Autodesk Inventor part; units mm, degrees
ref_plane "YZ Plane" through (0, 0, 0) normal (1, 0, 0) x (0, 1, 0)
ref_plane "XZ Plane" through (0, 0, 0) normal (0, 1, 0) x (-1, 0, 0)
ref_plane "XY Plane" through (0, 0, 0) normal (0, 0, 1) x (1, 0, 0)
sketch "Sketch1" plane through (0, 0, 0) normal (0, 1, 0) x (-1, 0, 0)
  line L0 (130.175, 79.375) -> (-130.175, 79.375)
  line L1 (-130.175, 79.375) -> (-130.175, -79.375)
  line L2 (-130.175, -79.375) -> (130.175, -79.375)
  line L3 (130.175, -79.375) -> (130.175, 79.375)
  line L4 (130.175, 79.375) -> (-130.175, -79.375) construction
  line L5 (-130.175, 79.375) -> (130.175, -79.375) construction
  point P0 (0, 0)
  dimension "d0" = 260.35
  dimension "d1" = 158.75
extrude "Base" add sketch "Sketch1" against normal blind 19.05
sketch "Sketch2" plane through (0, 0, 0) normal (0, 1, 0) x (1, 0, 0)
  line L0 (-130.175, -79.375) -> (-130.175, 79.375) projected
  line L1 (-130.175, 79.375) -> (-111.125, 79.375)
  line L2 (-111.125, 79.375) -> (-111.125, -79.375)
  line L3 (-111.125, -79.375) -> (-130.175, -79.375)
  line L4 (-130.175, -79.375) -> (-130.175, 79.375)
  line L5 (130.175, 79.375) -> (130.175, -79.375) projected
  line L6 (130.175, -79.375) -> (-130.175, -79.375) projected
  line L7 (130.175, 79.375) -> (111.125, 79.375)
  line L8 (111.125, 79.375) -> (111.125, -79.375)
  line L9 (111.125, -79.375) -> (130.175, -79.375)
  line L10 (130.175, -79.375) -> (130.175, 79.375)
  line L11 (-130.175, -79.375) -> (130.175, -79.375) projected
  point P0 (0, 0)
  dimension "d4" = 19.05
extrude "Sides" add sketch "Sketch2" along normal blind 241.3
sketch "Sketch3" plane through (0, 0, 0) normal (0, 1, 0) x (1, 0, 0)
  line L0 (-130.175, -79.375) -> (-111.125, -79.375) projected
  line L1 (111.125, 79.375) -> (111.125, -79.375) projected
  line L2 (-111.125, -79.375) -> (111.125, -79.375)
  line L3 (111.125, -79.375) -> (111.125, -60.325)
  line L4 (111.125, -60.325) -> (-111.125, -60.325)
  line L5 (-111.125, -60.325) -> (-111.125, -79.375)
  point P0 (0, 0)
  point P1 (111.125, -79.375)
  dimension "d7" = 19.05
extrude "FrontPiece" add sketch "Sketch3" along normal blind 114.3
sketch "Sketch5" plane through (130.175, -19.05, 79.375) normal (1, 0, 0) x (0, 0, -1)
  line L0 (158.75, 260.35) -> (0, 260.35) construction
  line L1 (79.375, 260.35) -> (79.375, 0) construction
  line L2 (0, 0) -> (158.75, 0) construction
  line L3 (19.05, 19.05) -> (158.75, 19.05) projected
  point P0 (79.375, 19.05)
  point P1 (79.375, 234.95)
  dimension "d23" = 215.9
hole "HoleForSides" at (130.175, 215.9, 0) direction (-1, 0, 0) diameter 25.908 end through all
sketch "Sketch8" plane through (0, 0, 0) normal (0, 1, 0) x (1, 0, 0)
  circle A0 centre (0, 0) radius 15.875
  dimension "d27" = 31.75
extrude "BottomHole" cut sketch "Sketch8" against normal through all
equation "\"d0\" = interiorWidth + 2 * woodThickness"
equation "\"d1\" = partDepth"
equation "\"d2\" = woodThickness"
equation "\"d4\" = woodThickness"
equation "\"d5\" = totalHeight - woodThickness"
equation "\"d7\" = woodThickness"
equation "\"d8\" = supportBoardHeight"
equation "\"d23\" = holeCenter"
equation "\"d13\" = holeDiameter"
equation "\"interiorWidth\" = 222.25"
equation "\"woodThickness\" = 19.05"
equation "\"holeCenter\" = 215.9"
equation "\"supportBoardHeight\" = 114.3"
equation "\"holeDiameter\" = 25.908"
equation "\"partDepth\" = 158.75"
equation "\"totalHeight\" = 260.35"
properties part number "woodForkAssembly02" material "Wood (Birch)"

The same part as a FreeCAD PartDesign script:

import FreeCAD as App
import Part
import Sketcher
Q = App.Units.Quantity

doc = App.newDocument("Part")
body = doc.addObject("PartDesign::Body", "Body")

sketch1 = body.newObject("Sketcher::SketchObject", "Sketch")
sketch1.AttachmentSupport = (doc.getObject("XZ_Plane"), [""])
sketch1.MapMode = "FlatFace"
sketch1.addGeometry([
    Part.LineSegment(App.Vector(-130, -79, 0), App.Vector(-130, 79, 0)),
    Part.LineSegment(App.Vector(-130, 79, 0), App.Vector(130, 79, 0)),
    Part.LineSegment(App.Vector(130, 79, 0), App.Vector(130, -79, 0)),
    Part.LineSegment(App.Vector(130, -79, 0), App.Vector(-130, -79, 0)),
], False)
sketch1.addConstraint([
    Sketcher.Constraint("Coincident", 0, 2, 1, 1),
    Sketcher.Constraint("Coincident", 1, 2, 2, 1),
    Sketcher.Constraint("Coincident", 2, 2, 3, 1),
    Sketcher.Constraint("Coincident", 3, 2, 0, 1),
    Sketcher.Constraint("Vertical", 0),
    Sketcher.Constraint("Horizontal", 1),
    Sketcher.Constraint("Vertical", 2),
    Sketcher.Constraint("Horizontal", 3),
    Sketcher.Constraint("Symmetric", 0, 2, 2, 2, -1, 1),
    Sketcher.Constraint("DistanceX", 1, 1, 1, 2, Q("10.25 in")),
    Sketcher.Constraint("DistanceY", 0, 1, 0, 2, Q("6.25 in")),
])
pad1 = body.newObject("PartDesign::Pad", "Pad")
pad1.Profile = sketch1
pad1.Length = Q("0.75 in")

sketch2 = body.newObject("Sketcher::SketchObject", "Sketch001")
sketch2.AttachmentSupport = (doc.getObject("XZ_Plane"), [""])
sketch2.MapMode = "FlatFace"
sketch2.addGeometry([
    Part.LineSegment(App.Vector(111, -79, 0), App.Vector(111, 79, 0)),
    Part.LineSegment(App.Vector(111, 79, 0), App.Vector(130, 79, 0)),
    Part.LineSegment(App.Vector(130, 79, 0), App.Vector(130, -79, 0)),
    Part.LineSegment(App.Vector(130, -79, 0), App.Vector(111, -79, 0)),
    Part.LineSegment(App.Vector(-130, -79, 0), App.Vector(-130, 79, 0)),
    Part.LineSegment(App.Vector(-130, 79, 0), App.Vector(-111, 79, 0)),
    Part.LineSegment(App.Vector(-111, 79, 0), App.Vector(-111, -79, 0)),
    Part.LineSegment(App.Vector(-111, -79, 0), App.Vector(-130, -79, 0)),
], False)
sketch2.addConstraint([
    Sketcher.Constraint("Coincident", 0, 2, 1, 1),
    Sketcher.Constraint("Coincident", 1, 2, 2, 1),
    Sketcher.Constraint("Coincident", 2, 2, 3, 1),
    Sketcher.Constraint("Coincident", 3, 2, 0, 1),
    Sketcher.Constraint("Coincident", 4, 2, 5, 1),
    Sketcher.Constraint("Coincident", 5, 2, 6, 1),
    Sketcher.Constraint("Coincident", 6, 2, 7, 1),
    Sketcher.Constraint("Coincident", 7, 2, 4, 1),
    Sketcher.Constraint("Vertical", 0),
    Sketcher.Constraint("Horizontal", 1),
    Sketcher.Constraint("Vertical", 2),
    Sketcher.Constraint("Horizontal", 3),
    Sketcher.Constraint("Vertical", 4),
    Sketcher.Constraint("Horizontal", 5),
    Sketcher.Constraint("Vertical", 6),
    Sketcher.Constraint("Horizontal", 7),
    Sketcher.Constraint("Symmetric", 2, 2, 4, 2, -1, 1),
    Sketcher.Constraint("Symmetric", 0, 2, 6, 2, -1, 1),
    Sketcher.Constraint("Horizontal", 1, 2, 4, 2),
    Sketcher.Constraint("DistanceX", 1, 1, 1, 2, Q("0.75 in")),
    Sketcher.Constraint("DistanceY", 0, 1, 0, 2, Q("6.25 in")),
    Sketcher.Constraint("DistanceX", 4, 2, 0, 2, Q("9.5 in")),
])
pad2 = body.newObject("PartDesign::Pad", "Pad001")
pad2.Profile = sketch2
pad2.Length = Q("9.5 in")
pad2.Reversed = True

sketch3 = body.newObject("Sketcher::SketchObject", "Sketch002")
sketch3.AttachmentSupport = (doc.getObject("XZ_Plane"), [""])
sketch3.MapMode = "FlatFace"
sketch3.addGeometry([
    Part.LineSegment(App.Vector(111, 79, 0), App.Vector(111, 60, 0)),
    Part.LineSegment(App.Vector(111, 60, 0), App.Vector(-111, 60, 0)),
    Part.LineSegment(App.Vector(-111, 60, 0), App.Vector(-111, 79, 0)),
    Part.LineSegment(App.Vector(-111, 79, 0), App.Vector(111, 79, 0)),
], False)
sketch3.addConstraint([
    Sketcher.Constraint("Coincident", 0, 2, 1, 1),
    Sketcher.Constraint("Coincident", 1, 2, 2, 1),
    Sketcher.Constraint("Coincident", 2, 2, 3, 1),
    Sketcher.Constraint("Coincident", 3, 2, 0, 1),
    Sketcher.Constraint("Vertical", 0),
    Sketcher.Constraint("Horizontal", 1),
    Sketcher.Constraint("Vertical", 2),
    Sketcher.Constraint("Horizontal", 3),
    Sketcher.Constraint("DistanceY", 0, 2, 0, 1, Q("0.75 in")),
    Sketcher.Constraint("DistanceX", 1, 2, 1, 1, Q("8.75 in")),
    Sketcher.Constraint("DistanceX", -1, 1, 0, 2, Q("4.375 in")),
    Sketcher.Constraint("DistanceY", -1, 1, 0, 2, Q("2.375 in")),
])
pad3 = body.newObject("PartDesign::Pad", "Pad002")
pad3.Profile = sketch3
pad3.Length = Q("4.5 in")
pad3.Reversed = True

sketch4 = body.newObject("Sketcher::SketchObject", "Sketch003")
sketch4.AttachmentSupport = (doc.getObject("YZ_Plane"), [""])
sketch4.MapMode = "FlatFace"
sketch4.AttachmentOffset = App.Placement(App.Vector(0, 0, 5.125 * 25.4), App.Rotation())
sketch4.addGeometry(Part.Circle(App.Vector(216, 0, 0), App.Vector(0, 0, 1), 13), False)
sketch4.addConstraint([
    Sketcher.Constraint("PointOnObject", 0, 3, -1),
    Sketcher.Constraint("Diameter", 0, Q("1.02 in")),
    Sketcher.Constraint("DistanceX", -1, 1, 0, 3, Q("8.5 in")),
])
doc.recompute()
hole = body.newObject("PartDesign::Hole", "Hole")
hole.Profile = sketch4
hole.ThreadType = "None"
hole.Diameter = Q("1.02 in")
hole.DepthType = "ThroughAll"

sketch5 = body.newObject("Sketcher::SketchObject", "Sketch004")
sketch5.AttachmentSupport = (doc.getObject("XZ_Plane"), [""])
sketch5.MapMode = "FlatFace"
sketch5.addGeometry(Part.Circle(App.Vector(0, 0, 0), App.Vector(0, 0, 1), 16), False)
sketch5.addConstraint([
    Sketcher.Constraint("Coincident", 0, 3, -1, 1),
    Sketcher.Constraint("Diameter", 0, Q("1.25 in")),
])
pocket1 = body.newObject("PartDesign::Pocket", "Pocket")
pocket1.Profile = sketch5
pocket1.Type = "ThroughAll"
pocket1.Reversed = True

doc.recompute()
